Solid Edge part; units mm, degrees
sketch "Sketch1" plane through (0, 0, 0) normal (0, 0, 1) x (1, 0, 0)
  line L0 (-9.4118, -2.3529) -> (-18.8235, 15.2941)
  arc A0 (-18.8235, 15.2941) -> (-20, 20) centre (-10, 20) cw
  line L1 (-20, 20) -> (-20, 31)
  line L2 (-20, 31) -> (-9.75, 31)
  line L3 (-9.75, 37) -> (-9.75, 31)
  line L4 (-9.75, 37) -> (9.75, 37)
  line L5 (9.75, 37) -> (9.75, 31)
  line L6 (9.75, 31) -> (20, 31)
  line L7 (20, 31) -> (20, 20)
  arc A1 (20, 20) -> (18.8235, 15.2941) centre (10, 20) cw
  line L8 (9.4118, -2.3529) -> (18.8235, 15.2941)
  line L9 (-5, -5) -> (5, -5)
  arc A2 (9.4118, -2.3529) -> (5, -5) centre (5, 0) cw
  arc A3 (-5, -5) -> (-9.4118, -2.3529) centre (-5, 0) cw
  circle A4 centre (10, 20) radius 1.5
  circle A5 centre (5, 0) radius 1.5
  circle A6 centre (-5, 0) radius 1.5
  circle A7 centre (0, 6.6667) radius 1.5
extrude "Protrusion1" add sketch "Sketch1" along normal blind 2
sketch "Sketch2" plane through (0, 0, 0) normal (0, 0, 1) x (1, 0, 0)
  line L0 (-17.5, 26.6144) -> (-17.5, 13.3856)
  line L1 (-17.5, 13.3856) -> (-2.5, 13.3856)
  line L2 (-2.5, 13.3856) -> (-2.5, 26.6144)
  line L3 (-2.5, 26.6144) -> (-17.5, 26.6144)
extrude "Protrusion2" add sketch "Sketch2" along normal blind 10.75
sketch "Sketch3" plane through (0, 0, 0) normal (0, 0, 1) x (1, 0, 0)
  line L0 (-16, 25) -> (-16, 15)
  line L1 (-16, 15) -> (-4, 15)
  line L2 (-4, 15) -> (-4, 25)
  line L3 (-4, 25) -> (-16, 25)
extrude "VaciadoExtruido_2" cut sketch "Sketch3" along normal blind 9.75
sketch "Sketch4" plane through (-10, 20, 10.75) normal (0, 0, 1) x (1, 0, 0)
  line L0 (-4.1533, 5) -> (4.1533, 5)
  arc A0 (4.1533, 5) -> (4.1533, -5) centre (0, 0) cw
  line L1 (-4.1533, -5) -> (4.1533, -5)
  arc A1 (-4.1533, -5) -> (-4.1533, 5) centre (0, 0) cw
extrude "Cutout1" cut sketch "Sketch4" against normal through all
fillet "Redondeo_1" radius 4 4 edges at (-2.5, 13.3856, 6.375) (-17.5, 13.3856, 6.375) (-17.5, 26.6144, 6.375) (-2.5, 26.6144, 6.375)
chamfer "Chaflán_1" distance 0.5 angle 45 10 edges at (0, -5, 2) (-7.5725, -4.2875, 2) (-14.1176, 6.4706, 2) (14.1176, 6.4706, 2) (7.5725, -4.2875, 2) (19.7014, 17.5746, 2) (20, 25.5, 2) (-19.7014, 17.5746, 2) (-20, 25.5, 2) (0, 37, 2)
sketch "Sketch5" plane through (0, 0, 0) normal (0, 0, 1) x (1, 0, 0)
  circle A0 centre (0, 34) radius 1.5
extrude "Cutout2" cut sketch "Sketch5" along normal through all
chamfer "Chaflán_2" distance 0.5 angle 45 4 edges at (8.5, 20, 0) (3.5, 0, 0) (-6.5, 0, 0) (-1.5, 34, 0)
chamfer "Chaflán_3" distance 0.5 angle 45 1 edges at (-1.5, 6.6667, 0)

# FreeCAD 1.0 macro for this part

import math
import FreeCAD as App
import Part
import Sketcher

V = App.Vector
Q = App.Units.Quantity


def edges_at(feature, points):
    """Names of the edges that pass closest to the given points."""
    edges = feature.Shape.Edges
    near = lambda p: min(range(len(edges)), key=lambda i: edges[i].distToShape(Part.Vertex(*p))[0])
    return sorted({f"Edge{near(p) + 1}" for p in points})

doc = App.newDocument("Part")
body = doc.addObject("PartDesign::Body", "Body")

sketch1 = body.newObject("Sketcher::SketchObject", "Sketch")
sketch1.AttachmentSupport = (doc.getObject("XY_Plane"), [""])
sketch1.MapMode = "FlatFace"
sketch1.addGeometry(Part.LineSegment(V(-18.8, 15.3, 0), V(-9.4, -2.4, 0)), False)
sketch1.addGeometry(Part.ArcOfCircle(Part.Circle(V(-5, 0, 0), V(0, 0, 1), 5), math.radians(-152), math.radians(-90)), False)
sketch1.addGeometry(Part.LineSegment(V(-5, -5, 0), V(5, -5, 0)), False)
sketch1.addGeometry(Part.ArcOfCircle(Part.Circle(V(5, 0, 0), V(0, 0, 1), 5), math.radians(-90), math.radians(-28)), False)
sketch1.addGeometry(Part.LineSegment(V(9.4, -2.4, 0), V(18.8, 15.3, 0)), False)
sketch1.addGeometry(Part.ArcOfCircle(Part.Circle(V(10, 20, 0), V(0, 0, 1), 10), math.radians(-28), math.radians(0)), False)
sketch1.addGeometry(Part.LineSegment(V(20, 20, 0), V(20, 31, 0)), False)
sketch1.addGeometry(Part.LineSegment(V(20, 31, 0), V(9.8, 31, 0)), False)
sketch1.addGeometry(Part.LineSegment(V(9.8, 31, 0), V(9.8, 37, 0)), False)
sketch1.addGeometry(Part.LineSegment(V(9.8, 37, 0), V(-9.8, 37, 0)), False)
sketch1.addGeometry(Part.LineSegment(V(-9.8, 37, 0), V(-9.8, 31, 0)), False)
sketch1.addGeometry(Part.LineSegment(V(-9.8, 31, 0), V(-20, 31, 0)), False)
sketch1.addGeometry(Part.LineSegment(V(-20, 31, 0), V(-20, 20, 0)), False)
sketch1.addGeometry(Part.ArcOfCircle(Part.Circle(V(-10, 20, 0), V(0, 0, 1), 10), math.radians(180), math.radians(208)), False)
sketch1.addGeometry(Part.Circle(V(-5, 0, 0), V(0, 0, 1), 1.5), False)
sketch1.addGeometry(Part.Circle(V(0, 6.7, 0), V(0, 0, 1), 1.5), False)
sketch1.addGeometry(Part.Circle(V(5, 0, 0), V(0, 0, 1), 1.5), False)
sketch1.addGeometry(Part.Circle(V(10, 20, 0), V(0, 0, 1), 1.5), False)
sketch1.addConstraint(Sketcher.Constraint("Tangent", 0, 2, 1, 1))
sketch1.addConstraint(Sketcher.Constraint("Tangent", 1, 2, 2, 1))
sketch1.addConstraint(Sketcher.Constraint("Tangent", 2, 2, 3, 1))
sketch1.addConstraint(Sketcher.Constraint("Tangent", 3, 2, 4, 1))
sketch1.addConstraint(Sketcher.Constraint("Tangent", 4, 2, 5, 1))
sketch1.addConstraint(Sketcher.Constraint("Tangent", 5, 2, 6, 1))
sketch1.addConstraint(Sketcher.Constraint("Coincident", 6, 2, 7, 1))
sketch1.addConstraint(Sketcher.Constraint("Coincident", 7, 2, 8, 1))
sketch1.addConstraint(Sketcher.Constraint("Coincident", 8, 2, 9, 1))
sketch1.addConstraint(Sketcher.Constraint("Coincident", 9, 2, 10, 1))
sketch1.addConstraint(Sketcher.Constraint("Coincident", 10, 2, 11, 1))
sketch1.addConstraint(Sketcher.Constraint("Coincident", 11, 2, 12, 1))
sketch1.addConstraint(Sketcher.Constraint("Tangent", 12, 2, 13, 1))
sketch1.addConstraint(Sketcher.Constraint("Tangent", 13, 2, 0, 1))
sketch1.addConstraint(Sketcher.Constraint("Horizontal", 2))
sketch1.addConstraint(Sketcher.Constraint("Vertical", 6))
sketch1.addConstraint(Sketcher.Constraint("Horizontal", 7))
sketch1.addConstraint(Sketcher.Constraint("Vertical", 8))
sketch1.addConstraint(Sketcher.Constraint("Horizontal", 9))
sketch1.addConstraint(Sketcher.Constraint("Vertical", 10))
sketch1.addConstraint(Sketcher.Constraint("Horizontal", 11))
sketch1.addConstraint(Sketcher.Constraint("Vertical", 12))
sketch1.addConstraint(Sketcher.Constraint("Coincident", 14, 3, 1, 3))
sketch1.addConstraint(Sketcher.Constraint("Coincident", 16, 3, 3, 3))
sketch1.addConstraint(Sketcher.Constraint("Coincident", 17, 3, 5, 3))
sketch1.addConstraint(Sketcher.Constraint("Equal", 1, 3))
sketch1.addConstraint(Sketcher.Constraint("Equal", 5, 13))
sketch1.addConstraint(Sketcher.Constraint("Equal", 14, 15))
sketch1.addConstraint(Sketcher.Constraint("Equal", 15, 16))
sketch1.addConstraint(Sketcher.Constraint("Equal", 16, 17))
sketch1.addConstraint(Sketcher.Constraint("Symmetric", 1, 3, 3, 3, -1, 1))
sketch1.addConstraint(Sketcher.Constraint("Symmetric", 5, 3, 13, 3, -2))
sketch1.addConstraint(Sketcher.Constraint("Symmetric", 7, 2, 10, 2, -2))
sketch1.addConstraint(Sketcher.Constraint("PointOnObject", 15, 3, -2))
sketch1.addConstraint(Sketcher.Constraint("Diameter", 14, Q("3 mm")))
sketch1.addConstraint(Sketcher.Constraint("Radius", 1, Q("5 mm")))
sketch1.addConstraint(Sketcher.Constraint("Radius", 5, Q("10 mm")))
sketch1.addConstraint(Sketcher.Constraint("DistanceX", 2, 1, 2, 2, Q("10 mm")))
sketch1.addConstraint(Sketcher.Constraint("DistanceY", 6, 1, 6, 2, Q("11 mm")))
sketch1.addConstraint(Sketcher.Constraint("DistanceY", 8, 1, 8, 2, Q("6 mm")))
sketch1.addConstraint(Sketcher.Constraint("Distance", 0, Q("20 mm")))
sketch1.addConstraint(Sketcher.Constraint("DistanceX", 9, 2, 9, 1, Q("19.5 mm")))
sketch1.addConstraint(Sketcher.Constraint("DistanceX", -1, 1, 5, 3, Q("10 mm")))
sketch1.addConstraint(Sketcher.Constraint("DistanceY", -1, 1, 15, 3, Q("6.6667 mm")))
pad1 = body.newObject("PartDesign::Pad", "Pad")
pad1.Profile = sketch1
pad1.Length = 2

sketch2 = body.newObject("Sketcher::SketchObject", "Sketch001")
sketch2.AttachmentSupport = (doc.getObject("XY_Plane"), [""])
sketch2.MapMode = "FlatFace"
sketch2.addGeometry(Part.LineSegment(V(-2, 27, 0), V(-18, 27, 0)), False)
sketch2.addGeometry(Part.LineSegment(V(-18, 27, 0), V(-18, 13, 0)), False)
sketch2.addGeometry(Part.LineSegment(V(-18, 13, 0), V(-2, 13, 0)), False)
sketch2.addGeometry(Part.LineSegment(V(-2, 13, 0), V(-2, 27, 0)), False)
sketch2.addConstraint(Sketcher.Constraint("Coincident", 0, 2, 1, 1))
sketch2.addConstraint(Sketcher.Constraint("Coincident", 1, 2, 2, 1))
sketch2.addConstraint(Sketcher.Constraint("Coincident", 2, 2, 3, 1))
sketch2.addConstraint(Sketcher.Constraint("Coincident", 3, 2, 0, 1))
sketch2.addConstraint(Sketcher.Constraint("Horizontal", 0))
sketch2.addConstraint(Sketcher.Constraint("Vertical", 1))
sketch2.addConstraint(Sketcher.Constraint("Horizontal", 2))
sketch2.addConstraint(Sketcher.Constraint("Vertical", 3))
sketch2.addConstraint(Sketcher.Constraint("DistanceX", 0, 2, 0, 1, Q("15 mm")))
sketch2.addConstraint(Sketcher.Constraint("DistanceX", 0, 2, -1, 1, Q("17.5 mm")))
sketch2.addConstraint(Sketcher.Constraint("DistanceY", 1, 2, 1, 1, Q("13.2288 mm")))
sketch2.addConstraint(Sketcher.Constraint("DistanceY", -1, 1, 0, 2, Q("26.6144 mm")))
pad2 = body.newObject("PartDesign::Pad", "Pad001")
pad2.Profile = sketch2
pad2.Length = 10.75

sketch3 = body.newObject("Sketcher::SketchObject", "Sketch002")
sketch3.AttachmentSupport = (doc.getObject("XY_Plane"), [""])
sketch3.MapMode = "FlatFace"
sketch3.addGeometry(Part.LineSegment(V(-4, 25, 0), V(-16, 25, 0)), False)
sketch3.addGeometry(Part.LineSegment(V(-16, 25, 0), V(-16, 15, 0)), False)
sketch3.addGeometry(Part.LineSegment(V(-16, 15, 0), V(-4, 15, 0)), False)
sketch3.addGeometry(Part.LineSegment(V(-4, 15, 0), V(-4, 25, 0)), False)
sketch3.addConstraint(Sketcher.Constraint("Coincident", 0, 2, 1, 1))
sketch3.addConstraint(Sketcher.Constraint("Coincident", 1, 2, 2, 1))
sketch3.addConstraint(Sketcher.Constraint("Coincident", 2, 2, 3, 1))
sketch3.addConstraint(Sketcher.Constraint("Coincident", 3, 2, 0, 1))
sketch3.addConstraint(Sketcher.Constraint("Horizontal", 0))
sketch3.addConstraint(Sketcher.Constraint("Vertical", 1))
sketch3.addConstraint(Sketcher.Constraint("Horizontal", 2))
sketch3.addConstraint(Sketcher.Constraint("Vertical", 3))
sketch3.addConstraint(Sketcher.Constraint("DistanceX", 0, 2, 0, 1, Q("12 mm")))
sketch3.addConstraint(Sketcher.Constraint("DistanceY", 1, 2, 1, 1, Q("10 mm")))
sketch3.addConstraint(Sketcher.Constraint("DistanceX", 0, 2, -1, 1, Q("16 mm")))
sketch3.addConstraint(Sketcher.Constraint("DistanceY", -1, 1, 0, 2, Q("25 mm")))
pocket1 = body.newObject("PartDesign::Pocket", "Pocket")
pocket1.Profile = sketch3
pocket1.Length = 9.75
pocket1.Reversed = True

sketch4 = body.newObject("Sketcher::SketchObject", "Sketch003")
sketch4.AttachmentSupport = (doc.getObject("XY_Plane"), [""])
sketch4.MapMode = "FlatFace"
sketch4.AttachmentOffset = App.Placement(V(0, 0, 10.75), App.Rotation())
sketch4.addGeometry(Part.LineSegment(V(-6, 25, 0), V(-14, 25, 0)), False)
sketch4.addGeometry(Part.ArcOfCircle(Part.Circle(V(-10, 20, 0), V(0, 0, 1), 6), math.radians(130), math.radians(230)), False)
sketch4.addGeometry(Part.LineSegment(V(-14, 15, 0), V(-6, 15, 0)), False)
sketch4.addGeometry(Part.ArcOfCircle(Part.Circle(V(-10, 20, 0), V(0, 0, 1), 6), math.radians(-50), math.radians(50)), False)
sketch4.addConstraint(Sketcher.Constraint("Coincident", 0, 2, 1, 1))
sketch4.addConstraint(Sketcher.Constraint("Coincident", 1, 2, 2, 1))
sketch4.addConstraint(Sketcher.Constraint("Coincident", 2, 2, 3, 1))
sketch4.addConstraint(Sketcher.Constraint("Coincident", 3, 2, 0, 1))
sketch4.addConstraint(Sketcher.Constraint("Horizontal", 0))
sketch4.addConstraint(Sketcher.Constraint("Horizontal", 2))
sketch4.addConstraint(Sketcher.Constraint("Coincident", 3, 3, 1, 3))
sketch4.addConstraint(Sketcher.Constraint("Equal", 1, 3))
sketch4.addConstraint(Sketcher.Constraint("Vertical", 0, 2, 1, 2))
sketch4.addConstraint(Sketcher.Constraint("Radius", 1, Q("6.5 mm")))
sketch4.addConstraint(Sketcher.Constraint("DistanceX", 1, 3, -1, 1, Q("10 mm")))
sketch4.addConstraint(Sketcher.Constraint("DistanceY", -1, 1, 1, 3, Q("20 mm")))
sketch4.addConstraint(Sketcher.Constraint("DistanceY", -1, 1, 0, 2, Q("25 mm")))
pocket2 = body.newObject("PartDesign::Pocket", "Pocket001")
pocket2.Profile = sketch4
pocket2.Type = "ThroughAll"
doc.recompute()

fillet = body.newObject("PartDesign::Fillet", "Fillet")
fillet.Base = (pocket2, edges_at(pocket2, [
    (-2.5, 13.386, 6.375),
    (-17.5, 13.386, 6.375),
    (-17.5, 26.614, 6.375),
    (-2.5, 26.614, 6.375),
]))
fillet.Radius = 4
doc.recompute()

chamfer = body.newObject("PartDesign::Chamfer", "Chamfer")
chamfer.Base = (fillet, edges_at(fillet, [
    (0, -5, 2),
    (-7.572, -4.287, 2),
    (-14.118, 6.471, 2),
    (14.118, 6.471, 2),
    (7.572, -4.287, 2),
    (19.701, 17.575, 2),
    (20, 25.5, 2),
    (-19.701, 17.575, 2),
    (-20, 25.5, 2),
    (0, 37, 2),
]))
chamfer.Size = 0.5

sketch5 = body.newObject("Sketcher::SketchObject", "Sketch004")
sketch5.AttachmentSupport = (doc.getObject("XY_Plane"), [""])
sketch5.MapMode = "FlatFace"
sketch5.addGeometry(Part.Circle(V(0, 34, 0), V(0, 0, 1), 1.5), False)
sketch5.addConstraint(Sketcher.Constraint("PointOnObject", 0, 3, -2))
sketch5.addConstraint(Sketcher.Constraint("Diameter", 0, Q("3 mm")))
sketch5.addConstraint(Sketcher.Constraint("DistanceY", -1, 1, 0, 3, Q("34 mm")))
pocket3 = body.newObject("PartDesign::Pocket", "Pocket002")
pocket3.Profile = sketch5
pocket3.Type = "ThroughAll"
pocket3.Reversed = True
doc.recompute()

chamfer2 = body.newObject("PartDesign::Chamfer", "Chamfer001")
chamfer2.Base = (pocket3, edges_at(pocket3, [
    (8.5, 20, 0),
    (3.5, 0, 0),
    (-6.5, 0, 0),
    (-1.5, 34, 0),
]))
chamfer2.Size = 0.5
doc.recompute()

chamfer3 = body.newObject("PartDesign::Chamfer", "Chamfer002")
chamfer3.Base = (chamfer2, edges_at(chamfer2, [(-1.5, 6.667, 0)]))
chamfer3.Size = 0.5

doc.recompute()
